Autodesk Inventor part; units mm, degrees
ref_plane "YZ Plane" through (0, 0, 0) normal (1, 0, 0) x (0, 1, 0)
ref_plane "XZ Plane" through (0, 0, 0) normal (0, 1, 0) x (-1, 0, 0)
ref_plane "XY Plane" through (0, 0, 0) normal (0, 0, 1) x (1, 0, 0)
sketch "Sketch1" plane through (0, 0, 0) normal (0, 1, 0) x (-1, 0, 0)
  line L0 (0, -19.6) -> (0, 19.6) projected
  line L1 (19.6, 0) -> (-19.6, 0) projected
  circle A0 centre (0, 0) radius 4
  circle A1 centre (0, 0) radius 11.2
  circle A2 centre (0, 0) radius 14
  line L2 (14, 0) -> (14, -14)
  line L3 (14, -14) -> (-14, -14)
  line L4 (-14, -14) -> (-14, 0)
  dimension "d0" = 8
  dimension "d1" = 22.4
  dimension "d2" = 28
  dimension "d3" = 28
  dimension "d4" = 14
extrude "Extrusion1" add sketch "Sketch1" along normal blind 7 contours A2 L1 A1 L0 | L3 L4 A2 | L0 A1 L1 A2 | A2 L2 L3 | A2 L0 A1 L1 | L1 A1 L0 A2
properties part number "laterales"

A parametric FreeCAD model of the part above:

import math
import FreeCAD as App
import Part
import Sketcher
from FreeCAD import Vector

doc = App.newDocument("Part")
params = doc.addObject("Spreadsheet::Sheet", "Params")
for row, (alias, value) in enumerate([
    ("sketch1_radius", "14 mm"),
    ("sketch1_diameter", "22.4 mm"),
    ("sketch1_height", "14 mm"),
    ("pad1_length", "7 mm"),
], start=1):
    params.set(f"A{row}", alias)
    params.set(f"B{row}", "=" + value)
    params.setAlias(f"B{row}", alias)

body = doc.addObject("PartDesign::Body", "Body")

sketch1 = body.newObject("Sketcher::SketchObject", "Sketch")
sketch1.AttachmentSupport = (doc.getObject("XZ_Plane"), [""])
sketch1.MapMode = "FlatFace"
sketch1.addGeometry([
    Part.LineSegment(Vector(14, -14, 0), Vector(-14, -14, 0)),
    Part.LineSegment(Vector(-14, -14, 0), Vector(-14, 0, 0)),
    Part.ArcOfCircle(Part.Circle(Vector(0, 0, 0), Vector(0, 0, 1), 14), math.radians(0), math.radians(180)),
    Part.LineSegment(Vector(14, 0, 0), Vector(14, -14, 0)),
    Part.Circle(Vector(0, 0, 0), Vector(0, 0, 1), 11.2),
], False)
sketch1.addConstraint([
    Sketcher.Constraint("Coincident", 0, 2, 1, 1),
    Sketcher.Constraint("Tangent", 1, 2, 2, 2),
    Sketcher.Constraint("Tangent", 2, 1, 3, 1),
    Sketcher.Constraint("Coincident", 3, 2, 0, 1),
    Sketcher.Constraint("Horizontal", 0),
    Sketcher.Constraint("Vertical", 1),
    Sketcher.Constraint("Vertical", 3),
    Sketcher.Constraint("Coincident", 2, 3, -1, 1),
    Sketcher.Constraint("Coincident", 4, 3, -1, 1),
    Sketcher.Constraint("Radius", 2, 14.0),
    Sketcher.Constraint("Diameter", 4, 22.4),
    Sketcher.Constraint("DistanceY", 1, 1, 1, 2, 14.0),
])
sketch1.setExpression("Constraints[9]", "Params.sketch1_radius")
sketch1.setExpression("Constraints[10]", "Params.sketch1_diameter")
sketch1.setExpression("Constraints[11]", "Params.sketch1_height")
pad1 = body.newObject("PartDesign::Pad", "Pad")
pad1.Profile = sketch1
pad1.setExpression("Length", "Params.pad1_length")
pad1.Reversed = True

doc.recompute()
